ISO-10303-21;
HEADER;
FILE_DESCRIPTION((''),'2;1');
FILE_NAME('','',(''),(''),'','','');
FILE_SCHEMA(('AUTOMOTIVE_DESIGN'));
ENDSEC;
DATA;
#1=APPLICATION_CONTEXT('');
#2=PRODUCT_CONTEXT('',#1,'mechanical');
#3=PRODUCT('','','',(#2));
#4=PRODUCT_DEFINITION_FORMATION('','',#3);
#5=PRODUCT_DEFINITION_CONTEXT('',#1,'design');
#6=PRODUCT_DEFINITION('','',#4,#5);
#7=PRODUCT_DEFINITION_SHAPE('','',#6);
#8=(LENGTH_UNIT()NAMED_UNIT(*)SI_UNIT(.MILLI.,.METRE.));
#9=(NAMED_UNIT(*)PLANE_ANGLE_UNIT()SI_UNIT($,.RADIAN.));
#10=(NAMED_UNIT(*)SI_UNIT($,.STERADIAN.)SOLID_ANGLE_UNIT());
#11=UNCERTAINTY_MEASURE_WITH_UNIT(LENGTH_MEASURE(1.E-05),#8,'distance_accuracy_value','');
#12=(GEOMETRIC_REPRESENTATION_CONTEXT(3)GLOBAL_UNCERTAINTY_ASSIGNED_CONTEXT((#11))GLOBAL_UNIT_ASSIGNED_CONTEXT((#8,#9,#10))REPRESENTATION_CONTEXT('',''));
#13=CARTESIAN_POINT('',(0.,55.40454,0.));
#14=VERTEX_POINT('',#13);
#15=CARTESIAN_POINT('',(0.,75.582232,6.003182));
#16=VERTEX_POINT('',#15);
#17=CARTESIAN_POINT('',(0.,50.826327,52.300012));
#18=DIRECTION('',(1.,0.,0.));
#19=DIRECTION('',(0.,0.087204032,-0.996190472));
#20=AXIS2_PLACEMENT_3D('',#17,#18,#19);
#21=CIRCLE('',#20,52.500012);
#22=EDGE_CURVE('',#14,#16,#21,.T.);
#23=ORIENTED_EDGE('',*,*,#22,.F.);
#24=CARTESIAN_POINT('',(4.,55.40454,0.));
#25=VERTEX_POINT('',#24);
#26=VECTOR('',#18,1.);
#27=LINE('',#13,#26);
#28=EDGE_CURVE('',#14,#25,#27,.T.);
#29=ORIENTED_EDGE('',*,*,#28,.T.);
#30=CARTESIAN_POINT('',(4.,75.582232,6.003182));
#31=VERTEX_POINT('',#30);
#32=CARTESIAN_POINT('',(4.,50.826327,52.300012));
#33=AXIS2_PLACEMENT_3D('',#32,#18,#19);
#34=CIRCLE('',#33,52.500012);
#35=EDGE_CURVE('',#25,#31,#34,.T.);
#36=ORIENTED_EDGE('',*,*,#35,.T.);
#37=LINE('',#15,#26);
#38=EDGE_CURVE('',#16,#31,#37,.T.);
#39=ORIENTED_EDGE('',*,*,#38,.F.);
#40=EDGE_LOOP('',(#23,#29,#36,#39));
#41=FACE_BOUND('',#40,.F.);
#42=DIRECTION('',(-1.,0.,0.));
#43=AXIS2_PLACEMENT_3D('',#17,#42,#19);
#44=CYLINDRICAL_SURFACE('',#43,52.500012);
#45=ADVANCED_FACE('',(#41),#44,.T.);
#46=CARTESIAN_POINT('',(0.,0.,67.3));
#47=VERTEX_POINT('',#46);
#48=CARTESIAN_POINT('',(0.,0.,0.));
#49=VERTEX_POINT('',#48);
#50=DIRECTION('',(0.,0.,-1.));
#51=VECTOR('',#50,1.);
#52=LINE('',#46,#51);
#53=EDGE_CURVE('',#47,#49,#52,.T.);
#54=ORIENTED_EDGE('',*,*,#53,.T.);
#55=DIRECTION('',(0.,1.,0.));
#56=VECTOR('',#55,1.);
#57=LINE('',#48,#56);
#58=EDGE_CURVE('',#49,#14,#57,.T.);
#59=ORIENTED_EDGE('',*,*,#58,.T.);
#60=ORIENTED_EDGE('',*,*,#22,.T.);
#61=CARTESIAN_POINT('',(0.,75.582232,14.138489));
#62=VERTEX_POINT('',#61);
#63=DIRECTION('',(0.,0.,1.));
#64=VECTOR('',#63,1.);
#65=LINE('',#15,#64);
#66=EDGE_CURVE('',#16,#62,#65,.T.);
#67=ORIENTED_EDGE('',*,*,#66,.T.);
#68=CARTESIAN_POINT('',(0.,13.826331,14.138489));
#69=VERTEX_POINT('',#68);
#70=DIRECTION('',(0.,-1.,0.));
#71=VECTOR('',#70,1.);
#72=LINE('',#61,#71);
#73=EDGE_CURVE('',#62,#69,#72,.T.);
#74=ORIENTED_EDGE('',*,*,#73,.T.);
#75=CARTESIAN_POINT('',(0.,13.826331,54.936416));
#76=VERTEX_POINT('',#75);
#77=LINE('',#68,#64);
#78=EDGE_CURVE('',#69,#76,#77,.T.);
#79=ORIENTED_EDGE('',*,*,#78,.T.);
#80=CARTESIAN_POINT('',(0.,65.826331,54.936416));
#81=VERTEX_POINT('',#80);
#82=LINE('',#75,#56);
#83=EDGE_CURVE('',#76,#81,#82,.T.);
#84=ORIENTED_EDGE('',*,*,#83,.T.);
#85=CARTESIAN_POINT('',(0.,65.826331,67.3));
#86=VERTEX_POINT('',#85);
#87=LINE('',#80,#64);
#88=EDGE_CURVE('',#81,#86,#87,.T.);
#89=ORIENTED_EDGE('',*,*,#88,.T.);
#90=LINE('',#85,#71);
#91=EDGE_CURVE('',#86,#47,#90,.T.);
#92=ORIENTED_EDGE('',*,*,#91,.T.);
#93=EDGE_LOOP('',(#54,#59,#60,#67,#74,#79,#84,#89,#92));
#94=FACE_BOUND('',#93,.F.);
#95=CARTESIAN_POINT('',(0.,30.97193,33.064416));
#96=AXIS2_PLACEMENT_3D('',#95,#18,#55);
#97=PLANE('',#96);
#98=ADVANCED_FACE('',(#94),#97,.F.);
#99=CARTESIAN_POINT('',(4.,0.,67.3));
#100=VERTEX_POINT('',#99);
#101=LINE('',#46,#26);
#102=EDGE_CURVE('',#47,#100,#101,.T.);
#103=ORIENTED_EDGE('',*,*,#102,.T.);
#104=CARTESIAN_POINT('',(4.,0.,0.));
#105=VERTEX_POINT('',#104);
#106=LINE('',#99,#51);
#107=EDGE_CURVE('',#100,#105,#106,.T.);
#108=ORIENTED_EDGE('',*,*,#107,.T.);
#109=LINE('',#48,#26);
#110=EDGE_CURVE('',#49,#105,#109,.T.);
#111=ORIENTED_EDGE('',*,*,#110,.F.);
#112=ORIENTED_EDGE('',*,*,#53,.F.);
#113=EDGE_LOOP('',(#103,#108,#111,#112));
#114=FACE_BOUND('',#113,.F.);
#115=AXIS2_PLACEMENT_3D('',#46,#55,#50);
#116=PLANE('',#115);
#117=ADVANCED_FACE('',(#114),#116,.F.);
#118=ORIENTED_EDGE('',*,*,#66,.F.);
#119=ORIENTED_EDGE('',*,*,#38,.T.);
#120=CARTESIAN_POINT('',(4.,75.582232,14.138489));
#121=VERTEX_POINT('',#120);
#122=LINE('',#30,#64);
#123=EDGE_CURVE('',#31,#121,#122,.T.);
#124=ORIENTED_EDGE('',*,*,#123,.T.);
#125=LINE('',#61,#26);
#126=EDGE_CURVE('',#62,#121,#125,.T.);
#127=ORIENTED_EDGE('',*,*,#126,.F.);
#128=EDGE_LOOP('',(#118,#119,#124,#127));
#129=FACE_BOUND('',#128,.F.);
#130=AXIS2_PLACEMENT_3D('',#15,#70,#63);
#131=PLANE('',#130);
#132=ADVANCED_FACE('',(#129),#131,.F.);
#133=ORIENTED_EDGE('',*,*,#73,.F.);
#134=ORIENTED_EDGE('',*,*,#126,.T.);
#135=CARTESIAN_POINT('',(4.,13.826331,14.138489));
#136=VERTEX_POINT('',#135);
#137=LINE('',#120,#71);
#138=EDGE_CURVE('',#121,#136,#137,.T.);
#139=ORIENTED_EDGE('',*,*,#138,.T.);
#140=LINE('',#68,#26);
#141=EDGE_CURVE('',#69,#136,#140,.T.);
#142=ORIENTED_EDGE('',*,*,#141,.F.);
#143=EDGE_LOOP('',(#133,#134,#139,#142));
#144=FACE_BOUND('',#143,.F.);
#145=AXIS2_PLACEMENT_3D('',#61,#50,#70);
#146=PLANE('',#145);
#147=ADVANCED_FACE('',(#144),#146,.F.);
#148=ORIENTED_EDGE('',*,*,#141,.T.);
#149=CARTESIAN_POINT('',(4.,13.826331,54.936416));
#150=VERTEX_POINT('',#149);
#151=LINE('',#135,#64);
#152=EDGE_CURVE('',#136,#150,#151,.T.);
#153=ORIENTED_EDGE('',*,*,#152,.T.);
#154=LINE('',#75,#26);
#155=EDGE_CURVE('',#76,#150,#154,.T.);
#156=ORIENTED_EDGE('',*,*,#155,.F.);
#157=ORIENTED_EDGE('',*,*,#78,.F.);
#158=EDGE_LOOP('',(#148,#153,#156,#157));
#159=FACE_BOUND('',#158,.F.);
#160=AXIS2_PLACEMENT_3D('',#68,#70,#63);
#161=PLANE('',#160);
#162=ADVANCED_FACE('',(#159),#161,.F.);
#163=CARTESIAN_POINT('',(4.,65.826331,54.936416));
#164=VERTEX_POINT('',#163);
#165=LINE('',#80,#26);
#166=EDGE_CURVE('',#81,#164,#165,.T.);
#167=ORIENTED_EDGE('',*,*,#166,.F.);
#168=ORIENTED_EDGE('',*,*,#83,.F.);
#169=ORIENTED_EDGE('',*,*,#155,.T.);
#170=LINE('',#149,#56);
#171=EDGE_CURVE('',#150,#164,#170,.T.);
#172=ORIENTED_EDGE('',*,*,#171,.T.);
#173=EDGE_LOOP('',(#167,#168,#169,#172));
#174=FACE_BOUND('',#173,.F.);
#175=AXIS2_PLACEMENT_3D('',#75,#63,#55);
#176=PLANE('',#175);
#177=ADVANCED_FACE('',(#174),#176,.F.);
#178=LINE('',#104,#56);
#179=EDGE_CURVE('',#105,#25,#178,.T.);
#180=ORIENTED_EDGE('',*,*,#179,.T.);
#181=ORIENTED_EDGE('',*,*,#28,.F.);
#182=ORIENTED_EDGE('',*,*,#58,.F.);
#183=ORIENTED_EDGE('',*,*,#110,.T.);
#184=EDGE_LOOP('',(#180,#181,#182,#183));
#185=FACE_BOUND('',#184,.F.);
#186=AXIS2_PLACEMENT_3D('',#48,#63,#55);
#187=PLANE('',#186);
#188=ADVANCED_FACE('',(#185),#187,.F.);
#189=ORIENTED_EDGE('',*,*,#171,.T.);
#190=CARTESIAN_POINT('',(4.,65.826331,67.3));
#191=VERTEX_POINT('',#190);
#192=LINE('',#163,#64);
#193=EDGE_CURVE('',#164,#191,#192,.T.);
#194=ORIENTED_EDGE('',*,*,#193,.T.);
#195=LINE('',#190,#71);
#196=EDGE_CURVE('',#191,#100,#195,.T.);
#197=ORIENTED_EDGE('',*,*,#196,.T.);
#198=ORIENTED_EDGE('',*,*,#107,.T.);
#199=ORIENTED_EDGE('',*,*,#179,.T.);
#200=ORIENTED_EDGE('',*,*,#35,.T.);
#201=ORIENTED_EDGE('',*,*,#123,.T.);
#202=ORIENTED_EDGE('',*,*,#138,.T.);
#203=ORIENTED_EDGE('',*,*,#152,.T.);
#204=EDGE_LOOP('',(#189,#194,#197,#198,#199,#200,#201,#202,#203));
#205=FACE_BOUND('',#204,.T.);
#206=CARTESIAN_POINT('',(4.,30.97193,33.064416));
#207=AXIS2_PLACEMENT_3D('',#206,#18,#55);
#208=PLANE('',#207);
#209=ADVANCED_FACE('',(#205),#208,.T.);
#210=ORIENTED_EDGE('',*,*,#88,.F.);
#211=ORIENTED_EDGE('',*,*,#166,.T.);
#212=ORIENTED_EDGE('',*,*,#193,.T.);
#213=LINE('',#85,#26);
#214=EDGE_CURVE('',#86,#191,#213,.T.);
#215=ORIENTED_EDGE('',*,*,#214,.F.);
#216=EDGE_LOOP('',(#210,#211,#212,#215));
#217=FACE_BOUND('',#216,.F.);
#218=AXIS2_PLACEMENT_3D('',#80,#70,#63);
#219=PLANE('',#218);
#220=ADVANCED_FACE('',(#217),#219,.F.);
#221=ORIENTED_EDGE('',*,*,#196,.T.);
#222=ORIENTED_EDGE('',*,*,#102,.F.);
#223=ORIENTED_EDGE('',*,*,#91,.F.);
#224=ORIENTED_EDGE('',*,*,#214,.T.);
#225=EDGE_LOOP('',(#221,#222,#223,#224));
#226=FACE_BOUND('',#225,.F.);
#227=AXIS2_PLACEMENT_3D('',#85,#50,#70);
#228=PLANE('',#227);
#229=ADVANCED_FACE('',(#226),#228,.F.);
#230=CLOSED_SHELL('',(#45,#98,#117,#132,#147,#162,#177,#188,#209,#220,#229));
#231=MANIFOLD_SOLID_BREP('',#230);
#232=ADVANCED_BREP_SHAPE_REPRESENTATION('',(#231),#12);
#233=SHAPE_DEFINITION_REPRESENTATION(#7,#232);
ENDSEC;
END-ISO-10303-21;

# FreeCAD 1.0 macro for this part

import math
import FreeCAD as App
import Part
import Sketcher

doc = App.newDocument("Part")
body = doc.addObject("PartDesign::Body", "Body")

sketch1 = body.newObject("Sketcher::SketchObject", "Sketch")
sketch1.AttachmentSupport = (doc.getObject("YZ_Plane"), [""])
sketch1.MapMode = "FlatFace"
sketch1.addGeometry([
    Part.LineSegment(App.Vector(0, 67, 0), App.Vector(0, 0, 0)),
    Part.LineSegment(App.Vector(0, 0, 0), App.Vector(55, 0, 0)),
    Part.ArcOfCircle(Part.Circle(App.Vector(51, 52, 0), App.Vector(0, 0, 1), 53), math.radians(-85), math.radians(-62)),
    Part.LineSegment(App.Vector(76, 6, 0), App.Vector(76, 14, 0)),
    Part.LineSegment(App.Vector(76, 14, 0), App.Vector(14, 14, 0)),
    Part.LineSegment(App.Vector(14, 14, 0), App.Vector(14, 55, 0)),
    Part.LineSegment(App.Vector(14, 55, 0), App.Vector(66, 55, 0)),
    Part.LineSegment(App.Vector(66, 55, 0), App.Vector(66, 67, 0)),
    Part.LineSegment(App.Vector(66, 67, 0), App.Vector(0, 67, 0)),
], False)
sketch1.addConstraint([
    Sketcher.Constraint("Coincident", 0, 2, 1, 1),
    Sketcher.Constraint("Coincident", 1, 2, 2, 1),
    Sketcher.Constraint("Coincident", 2, 2, 3, 1),
    Sketcher.Constraint("Coincident", 3, 2, 4, 1),
    Sketcher.Constraint("Coincident", 4, 2, 5, 1),
    Sketcher.Constraint("Coincident", 5, 2, 6, 1),
    Sketcher.Constraint("Coincident", 6, 2, 7, 1),
    Sketcher.Constraint("Coincident", 7, 2, 8, 1),
    Sketcher.Constraint("Coincident", 8, 2, 0, 1),
    Sketcher.Constraint("Vertical", 0),
    Sketcher.Constraint("Horizontal", 1),
    Sketcher.Constraint("Vertical", 3),
    Sketcher.Constraint("Horizontal", 4),
    Sketcher.Constraint("Vertical", 5),
    Sketcher.Constraint("Horizontal", 6),
    Sketcher.Constraint("Vertical", 7),
    Sketcher.Constraint("Horizontal", 8),
    Sketcher.Constraint("Coincident", 0, 2, -1, 1),
    Sketcher.Constraint("DistanceX", 6, 1, 6, 2, 52.0),
    Sketcher.Constraint("DistanceY", 0, 2, 0, 1, 67.3),
    Sketcher.Constraint("DistanceX", 4, 2, 4, 1, 61.755901),
    Sketcher.Constraint("Radius", 2, 52.500012),
    Sketcher.Constraint("DistanceX", 1, 1, 1, 2, 55.40454),
    Sketcher.Constraint("DistanceX", 8, 2, 8, 1, 65.826331),
    Sketcher.Constraint("DistanceY", 3, 1, 3, 2, 8.135307),
    Sketcher.Constraint("DistanceY", 5, 1, 5, 2, 40.797927),
    Sketcher.Constraint("DistanceY", 7, 1, 7, 2, 12.363584),
])
pad1 = body.newObject("PartDesign::Pad", "Pad")
pad1.Profile = sketch1
pad1.Length = 4

doc.recompute()
